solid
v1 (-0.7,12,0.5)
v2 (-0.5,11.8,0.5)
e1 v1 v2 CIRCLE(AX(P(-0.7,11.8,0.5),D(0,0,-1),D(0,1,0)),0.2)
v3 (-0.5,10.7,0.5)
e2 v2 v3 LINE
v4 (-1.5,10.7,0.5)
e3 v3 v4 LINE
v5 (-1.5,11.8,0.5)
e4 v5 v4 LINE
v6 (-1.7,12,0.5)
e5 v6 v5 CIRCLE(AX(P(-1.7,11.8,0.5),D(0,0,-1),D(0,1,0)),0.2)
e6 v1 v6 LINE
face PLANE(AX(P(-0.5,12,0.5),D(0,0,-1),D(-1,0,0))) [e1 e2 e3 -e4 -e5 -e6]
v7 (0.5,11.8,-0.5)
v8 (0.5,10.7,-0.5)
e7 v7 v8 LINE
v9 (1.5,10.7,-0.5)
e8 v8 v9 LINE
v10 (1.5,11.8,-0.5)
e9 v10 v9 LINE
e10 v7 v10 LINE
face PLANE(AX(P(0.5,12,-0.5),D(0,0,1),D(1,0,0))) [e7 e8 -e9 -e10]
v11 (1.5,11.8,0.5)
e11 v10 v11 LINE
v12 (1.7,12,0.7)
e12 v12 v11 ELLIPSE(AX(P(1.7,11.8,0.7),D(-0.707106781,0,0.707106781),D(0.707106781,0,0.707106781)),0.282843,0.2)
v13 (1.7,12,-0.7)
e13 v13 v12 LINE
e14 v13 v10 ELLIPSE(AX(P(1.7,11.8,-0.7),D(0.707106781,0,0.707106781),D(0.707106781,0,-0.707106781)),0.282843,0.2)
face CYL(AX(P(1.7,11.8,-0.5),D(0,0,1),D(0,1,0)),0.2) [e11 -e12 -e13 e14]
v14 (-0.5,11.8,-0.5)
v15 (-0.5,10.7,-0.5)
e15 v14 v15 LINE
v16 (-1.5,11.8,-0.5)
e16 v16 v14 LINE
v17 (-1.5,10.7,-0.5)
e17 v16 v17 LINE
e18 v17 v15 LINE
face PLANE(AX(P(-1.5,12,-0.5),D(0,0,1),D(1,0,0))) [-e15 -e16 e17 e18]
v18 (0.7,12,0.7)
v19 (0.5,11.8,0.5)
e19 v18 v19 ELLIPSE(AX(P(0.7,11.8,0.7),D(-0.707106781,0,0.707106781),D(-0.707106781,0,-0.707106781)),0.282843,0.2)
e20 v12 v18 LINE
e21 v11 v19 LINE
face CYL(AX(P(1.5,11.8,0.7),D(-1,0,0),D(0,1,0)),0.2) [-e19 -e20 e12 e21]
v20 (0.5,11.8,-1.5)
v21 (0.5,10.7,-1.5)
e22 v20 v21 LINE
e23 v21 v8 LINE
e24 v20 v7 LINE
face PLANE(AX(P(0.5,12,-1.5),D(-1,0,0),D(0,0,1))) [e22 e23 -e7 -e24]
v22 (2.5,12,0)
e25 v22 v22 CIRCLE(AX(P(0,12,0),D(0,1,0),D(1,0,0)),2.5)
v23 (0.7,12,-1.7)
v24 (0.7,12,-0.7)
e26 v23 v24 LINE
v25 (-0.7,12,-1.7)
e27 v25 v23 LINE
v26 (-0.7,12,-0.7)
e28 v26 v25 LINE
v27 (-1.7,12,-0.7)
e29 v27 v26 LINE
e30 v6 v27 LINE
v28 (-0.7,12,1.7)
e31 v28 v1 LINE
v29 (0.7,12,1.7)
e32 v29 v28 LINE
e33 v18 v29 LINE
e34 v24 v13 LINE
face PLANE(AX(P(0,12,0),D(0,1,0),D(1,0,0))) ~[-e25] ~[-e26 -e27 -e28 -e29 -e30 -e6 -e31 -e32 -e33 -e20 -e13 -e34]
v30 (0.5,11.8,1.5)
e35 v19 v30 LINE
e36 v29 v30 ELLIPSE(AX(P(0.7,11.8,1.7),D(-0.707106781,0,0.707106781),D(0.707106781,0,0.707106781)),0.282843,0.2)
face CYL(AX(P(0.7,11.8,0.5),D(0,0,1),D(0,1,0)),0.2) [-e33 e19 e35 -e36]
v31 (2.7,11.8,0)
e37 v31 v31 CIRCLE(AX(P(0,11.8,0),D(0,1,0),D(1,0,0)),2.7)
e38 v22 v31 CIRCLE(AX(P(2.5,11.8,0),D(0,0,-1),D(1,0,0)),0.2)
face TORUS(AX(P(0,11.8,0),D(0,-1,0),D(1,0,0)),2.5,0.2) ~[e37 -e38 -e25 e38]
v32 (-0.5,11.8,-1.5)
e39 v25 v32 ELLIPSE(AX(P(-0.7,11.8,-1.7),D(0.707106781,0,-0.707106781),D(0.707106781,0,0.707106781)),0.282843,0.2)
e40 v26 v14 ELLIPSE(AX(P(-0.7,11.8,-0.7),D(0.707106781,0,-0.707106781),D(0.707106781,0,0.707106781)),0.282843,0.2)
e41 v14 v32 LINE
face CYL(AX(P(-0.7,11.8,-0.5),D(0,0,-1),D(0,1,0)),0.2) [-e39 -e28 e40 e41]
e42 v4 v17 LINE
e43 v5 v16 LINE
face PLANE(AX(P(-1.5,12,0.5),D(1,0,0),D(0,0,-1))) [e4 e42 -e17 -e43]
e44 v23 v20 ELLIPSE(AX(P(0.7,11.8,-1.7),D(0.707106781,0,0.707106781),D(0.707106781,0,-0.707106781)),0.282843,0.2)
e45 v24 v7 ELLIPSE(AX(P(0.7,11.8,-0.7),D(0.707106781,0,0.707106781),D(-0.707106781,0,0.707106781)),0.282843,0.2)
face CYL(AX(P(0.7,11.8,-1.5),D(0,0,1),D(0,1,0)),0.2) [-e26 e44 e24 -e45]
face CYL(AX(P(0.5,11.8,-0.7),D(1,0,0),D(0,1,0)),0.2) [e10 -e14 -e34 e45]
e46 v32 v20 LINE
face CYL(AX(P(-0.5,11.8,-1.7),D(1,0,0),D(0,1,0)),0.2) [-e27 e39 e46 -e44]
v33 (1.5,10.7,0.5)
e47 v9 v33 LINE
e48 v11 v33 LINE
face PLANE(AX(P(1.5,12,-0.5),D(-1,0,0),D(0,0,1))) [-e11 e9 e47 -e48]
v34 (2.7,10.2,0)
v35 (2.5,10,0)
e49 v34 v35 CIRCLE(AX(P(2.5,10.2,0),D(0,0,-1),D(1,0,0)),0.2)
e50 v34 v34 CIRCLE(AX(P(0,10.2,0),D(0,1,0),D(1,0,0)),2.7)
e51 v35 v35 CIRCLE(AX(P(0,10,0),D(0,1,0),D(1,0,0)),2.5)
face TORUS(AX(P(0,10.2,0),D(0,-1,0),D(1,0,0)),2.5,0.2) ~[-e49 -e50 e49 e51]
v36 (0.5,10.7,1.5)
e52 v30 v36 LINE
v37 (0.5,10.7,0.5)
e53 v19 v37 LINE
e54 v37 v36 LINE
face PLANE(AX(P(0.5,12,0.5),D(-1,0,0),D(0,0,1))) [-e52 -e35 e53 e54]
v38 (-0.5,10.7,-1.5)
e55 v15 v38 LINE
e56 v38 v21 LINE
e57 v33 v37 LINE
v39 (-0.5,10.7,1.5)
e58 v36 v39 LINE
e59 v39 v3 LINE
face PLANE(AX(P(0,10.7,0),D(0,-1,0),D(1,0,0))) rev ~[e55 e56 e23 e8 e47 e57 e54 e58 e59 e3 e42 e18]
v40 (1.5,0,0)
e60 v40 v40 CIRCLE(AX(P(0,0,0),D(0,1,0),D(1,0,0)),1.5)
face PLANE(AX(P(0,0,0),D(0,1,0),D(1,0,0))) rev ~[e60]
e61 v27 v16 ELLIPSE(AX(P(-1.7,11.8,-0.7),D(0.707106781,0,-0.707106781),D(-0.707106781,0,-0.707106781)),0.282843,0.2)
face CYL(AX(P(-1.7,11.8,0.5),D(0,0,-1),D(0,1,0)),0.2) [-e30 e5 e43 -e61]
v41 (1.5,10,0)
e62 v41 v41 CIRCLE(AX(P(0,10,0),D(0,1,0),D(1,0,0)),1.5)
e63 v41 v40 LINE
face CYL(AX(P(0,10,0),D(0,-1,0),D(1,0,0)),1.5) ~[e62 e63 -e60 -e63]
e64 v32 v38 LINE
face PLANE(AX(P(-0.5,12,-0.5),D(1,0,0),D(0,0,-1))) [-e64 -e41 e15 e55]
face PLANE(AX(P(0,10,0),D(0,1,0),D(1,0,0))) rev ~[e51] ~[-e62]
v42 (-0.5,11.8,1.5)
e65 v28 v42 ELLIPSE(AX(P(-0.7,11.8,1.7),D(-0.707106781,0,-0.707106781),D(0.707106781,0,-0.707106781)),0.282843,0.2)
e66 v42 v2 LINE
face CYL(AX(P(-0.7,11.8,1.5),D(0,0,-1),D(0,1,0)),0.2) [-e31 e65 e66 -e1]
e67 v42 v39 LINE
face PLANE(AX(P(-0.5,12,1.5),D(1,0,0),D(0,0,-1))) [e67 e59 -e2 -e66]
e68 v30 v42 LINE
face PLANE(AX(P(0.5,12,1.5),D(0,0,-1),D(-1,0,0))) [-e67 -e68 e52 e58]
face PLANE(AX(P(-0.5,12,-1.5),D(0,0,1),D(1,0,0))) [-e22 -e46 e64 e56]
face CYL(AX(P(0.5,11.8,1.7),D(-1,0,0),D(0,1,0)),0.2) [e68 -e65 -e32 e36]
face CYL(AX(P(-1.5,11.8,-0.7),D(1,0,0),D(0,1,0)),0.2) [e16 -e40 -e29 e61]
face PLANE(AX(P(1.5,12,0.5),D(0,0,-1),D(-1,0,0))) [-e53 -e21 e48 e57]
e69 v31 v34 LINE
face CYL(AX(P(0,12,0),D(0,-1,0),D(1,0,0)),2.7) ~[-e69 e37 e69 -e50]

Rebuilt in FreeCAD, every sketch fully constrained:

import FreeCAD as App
import Part
import Sketcher
from FreeCAD import Vector
Q = App.Units.Quantity


def edges_at(feature, points):
    """Names of the edges that pass closest to the given points."""
    edges = feature.Shape.Edges
    near = lambda p: min(range(len(edges)), key=lambda i: edges[i].distToShape(Part.Vertex(*p))[0])
    return sorted({f"Edge{near(p) + 1}" for p in points})


def add_polygon(sketch, points):
    """Adds a closed chain of lines whose ends are joined by coincident constraints."""
    first, n = sketch.GeometryCount, len(points)
    for a, b in zip(points, points[1:] + points[:1]):
        sketch.addGeometry(Part.LineSegment(App.Vector(*a, 0), App.Vector(*b, 0)), False)
    for i in range(n):
        sketch.addConstraint(Sketcher.Constraint("Coincident", first + i, 2, first + (i + 1) % n, 1))

doc = App.newDocument("Part")
body = doc.addObject("PartDesign::Body", "Body")

# Sketch on XY plane
sketch1 = body.newObject("Sketcher::SketchObject", "Sketch")
sketch1.AttachmentSupport = (doc.getObject("XY_Plane"), [""])
sketch1.MapMode = "FlatFace"
add_polygon(sketch1, [(0, 12), (0, 0), (1.5, 0), (1.5, 10), (2.7, 10), (2.7, 12)])  # lines 0-5
sketch1.addConstraint([
    Sketcher.Constraint("Vertical", 0),
    Sketcher.Constraint("Horizontal", 1),
    Sketcher.Constraint("Vertical", 2),
    Sketcher.Constraint("Horizontal", 3),
    Sketcher.Constraint("Vertical", 4),
    Sketcher.Constraint("Horizontal", 5),
    Sketcher.Constraint("Coincident", 0, 2, -1, 1),
    Sketcher.Constraint("DistanceY", 0, 2, 0, 1, Q("12 mm")),
    Sketcher.Constraint("DistanceY", 2, 1, 2, 2, Q("10 mm")),
    Sketcher.Constraint("DistanceX", 1, 1, 1, 2, Q("1.5 mm")),
    Sketcher.Constraint("DistanceX", 3, 1, 3, 2, Q("1.2 mm")),
])
revolution = body.newObject("PartDesign::Revolution", "Revolution")
revolution.Profile = sketch1
revolution.ReferenceAxis = (sketch1, ["V_Axis"])
revolution.Angle = 360
doc.recompute()

fillet = body.newObject("PartDesign::Fillet", "Fillet")
fillet.Base = (revolution, edges_at(revolution, [(-2.7, 10, 0), (-2.7, 12, 0)]))
fillet.Radius = 0.2

# Sketch on XZ plane
sketch2 = body.newObject("Sketcher::SketchObject", "Sketch001")
sketch2.AttachmentSupport = (doc.getObject("XZ_Plane"), [""])
sketch2.MapMode = "FlatFace"
sketch2.AttachmentOffset = App.Placement(Vector(0, 0, -12), App.Rotation())
add_polygon(sketch2, [(-0.5, 0.5), (-0.5, 1.5), (0.5, 1.5), (0.5, 0.5), (1.5, 0.5), (1.5, -0.5), (0.5, -0.5), (0.5, -1.5), (-0.5, -1.5), (-0.5, -0.5), (-1.5, -0.5), (-1.5, 0.5)])  # lines 0-11
sketch2.addConstraint([
    Sketcher.Constraint("Vertical", 0),
    Sketcher.Constraint("Horizontal", 1),
    Sketcher.Constraint("Vertical", 2),
    Sketcher.Constraint("Horizontal", 3),
    Sketcher.Constraint("Vertical", 4),
    Sketcher.Constraint("Horizontal", 5),
    Sketcher.Constraint("Vertical", 6),
    Sketcher.Constraint("Horizontal", 7),
    Sketcher.Constraint("Vertical", 8),
    Sketcher.Constraint("Horizontal", 9),
    Sketcher.Constraint("Vertical", 10),
    Sketcher.Constraint("Horizontal", 11),
    Sketcher.Constraint("Symmetric", 0, 2, 6, 2, -1, 1),
    Sketcher.Constraint("Symmetric", 2, 2, 8, 2, -1, 1),
    Sketcher.Constraint("Symmetric", 4, 2, 10, 2, -1, 1),
    Sketcher.Constraint("Symmetric", 5, 2, 8, 2, -2),
    Sketcher.Constraint("Equal", 1, 3),
    Sketcher.Constraint("Equal", 11, 0),
    Sketcher.Constraint("Equal", 2, 4),
    Sketcher.Constraint("DistanceX", 1, 1, 1, 2, Q("1 mm")),
])
pocket1 = body.newObject("PartDesign::Pocket", "Pocket")
pocket1.Profile = sketch2
pocket1.Length = 1.3
pocket1.Reversed = True
doc.recompute()

fillet2 = body.newObject("PartDesign::Fillet", "Fillet001")
fillet2.Base = (pocket1, edges_at(pocket1, [
    (0, 12, -1.5),
    (0.5, 12, -1),
    (1, 12, -0.5),
    (1.5, 12, 0),
    (1, 12, 0.5),
    (0.5, 12, 1),
    (-0.5, 12, 1),
    (0, 12, 1.5),
    (-1.5, 12, 0),
    (-1, 12, -0.5),
    (-0.5, 12, -1),
]))
fillet2.Radius = 0.2

doc.recompute()
